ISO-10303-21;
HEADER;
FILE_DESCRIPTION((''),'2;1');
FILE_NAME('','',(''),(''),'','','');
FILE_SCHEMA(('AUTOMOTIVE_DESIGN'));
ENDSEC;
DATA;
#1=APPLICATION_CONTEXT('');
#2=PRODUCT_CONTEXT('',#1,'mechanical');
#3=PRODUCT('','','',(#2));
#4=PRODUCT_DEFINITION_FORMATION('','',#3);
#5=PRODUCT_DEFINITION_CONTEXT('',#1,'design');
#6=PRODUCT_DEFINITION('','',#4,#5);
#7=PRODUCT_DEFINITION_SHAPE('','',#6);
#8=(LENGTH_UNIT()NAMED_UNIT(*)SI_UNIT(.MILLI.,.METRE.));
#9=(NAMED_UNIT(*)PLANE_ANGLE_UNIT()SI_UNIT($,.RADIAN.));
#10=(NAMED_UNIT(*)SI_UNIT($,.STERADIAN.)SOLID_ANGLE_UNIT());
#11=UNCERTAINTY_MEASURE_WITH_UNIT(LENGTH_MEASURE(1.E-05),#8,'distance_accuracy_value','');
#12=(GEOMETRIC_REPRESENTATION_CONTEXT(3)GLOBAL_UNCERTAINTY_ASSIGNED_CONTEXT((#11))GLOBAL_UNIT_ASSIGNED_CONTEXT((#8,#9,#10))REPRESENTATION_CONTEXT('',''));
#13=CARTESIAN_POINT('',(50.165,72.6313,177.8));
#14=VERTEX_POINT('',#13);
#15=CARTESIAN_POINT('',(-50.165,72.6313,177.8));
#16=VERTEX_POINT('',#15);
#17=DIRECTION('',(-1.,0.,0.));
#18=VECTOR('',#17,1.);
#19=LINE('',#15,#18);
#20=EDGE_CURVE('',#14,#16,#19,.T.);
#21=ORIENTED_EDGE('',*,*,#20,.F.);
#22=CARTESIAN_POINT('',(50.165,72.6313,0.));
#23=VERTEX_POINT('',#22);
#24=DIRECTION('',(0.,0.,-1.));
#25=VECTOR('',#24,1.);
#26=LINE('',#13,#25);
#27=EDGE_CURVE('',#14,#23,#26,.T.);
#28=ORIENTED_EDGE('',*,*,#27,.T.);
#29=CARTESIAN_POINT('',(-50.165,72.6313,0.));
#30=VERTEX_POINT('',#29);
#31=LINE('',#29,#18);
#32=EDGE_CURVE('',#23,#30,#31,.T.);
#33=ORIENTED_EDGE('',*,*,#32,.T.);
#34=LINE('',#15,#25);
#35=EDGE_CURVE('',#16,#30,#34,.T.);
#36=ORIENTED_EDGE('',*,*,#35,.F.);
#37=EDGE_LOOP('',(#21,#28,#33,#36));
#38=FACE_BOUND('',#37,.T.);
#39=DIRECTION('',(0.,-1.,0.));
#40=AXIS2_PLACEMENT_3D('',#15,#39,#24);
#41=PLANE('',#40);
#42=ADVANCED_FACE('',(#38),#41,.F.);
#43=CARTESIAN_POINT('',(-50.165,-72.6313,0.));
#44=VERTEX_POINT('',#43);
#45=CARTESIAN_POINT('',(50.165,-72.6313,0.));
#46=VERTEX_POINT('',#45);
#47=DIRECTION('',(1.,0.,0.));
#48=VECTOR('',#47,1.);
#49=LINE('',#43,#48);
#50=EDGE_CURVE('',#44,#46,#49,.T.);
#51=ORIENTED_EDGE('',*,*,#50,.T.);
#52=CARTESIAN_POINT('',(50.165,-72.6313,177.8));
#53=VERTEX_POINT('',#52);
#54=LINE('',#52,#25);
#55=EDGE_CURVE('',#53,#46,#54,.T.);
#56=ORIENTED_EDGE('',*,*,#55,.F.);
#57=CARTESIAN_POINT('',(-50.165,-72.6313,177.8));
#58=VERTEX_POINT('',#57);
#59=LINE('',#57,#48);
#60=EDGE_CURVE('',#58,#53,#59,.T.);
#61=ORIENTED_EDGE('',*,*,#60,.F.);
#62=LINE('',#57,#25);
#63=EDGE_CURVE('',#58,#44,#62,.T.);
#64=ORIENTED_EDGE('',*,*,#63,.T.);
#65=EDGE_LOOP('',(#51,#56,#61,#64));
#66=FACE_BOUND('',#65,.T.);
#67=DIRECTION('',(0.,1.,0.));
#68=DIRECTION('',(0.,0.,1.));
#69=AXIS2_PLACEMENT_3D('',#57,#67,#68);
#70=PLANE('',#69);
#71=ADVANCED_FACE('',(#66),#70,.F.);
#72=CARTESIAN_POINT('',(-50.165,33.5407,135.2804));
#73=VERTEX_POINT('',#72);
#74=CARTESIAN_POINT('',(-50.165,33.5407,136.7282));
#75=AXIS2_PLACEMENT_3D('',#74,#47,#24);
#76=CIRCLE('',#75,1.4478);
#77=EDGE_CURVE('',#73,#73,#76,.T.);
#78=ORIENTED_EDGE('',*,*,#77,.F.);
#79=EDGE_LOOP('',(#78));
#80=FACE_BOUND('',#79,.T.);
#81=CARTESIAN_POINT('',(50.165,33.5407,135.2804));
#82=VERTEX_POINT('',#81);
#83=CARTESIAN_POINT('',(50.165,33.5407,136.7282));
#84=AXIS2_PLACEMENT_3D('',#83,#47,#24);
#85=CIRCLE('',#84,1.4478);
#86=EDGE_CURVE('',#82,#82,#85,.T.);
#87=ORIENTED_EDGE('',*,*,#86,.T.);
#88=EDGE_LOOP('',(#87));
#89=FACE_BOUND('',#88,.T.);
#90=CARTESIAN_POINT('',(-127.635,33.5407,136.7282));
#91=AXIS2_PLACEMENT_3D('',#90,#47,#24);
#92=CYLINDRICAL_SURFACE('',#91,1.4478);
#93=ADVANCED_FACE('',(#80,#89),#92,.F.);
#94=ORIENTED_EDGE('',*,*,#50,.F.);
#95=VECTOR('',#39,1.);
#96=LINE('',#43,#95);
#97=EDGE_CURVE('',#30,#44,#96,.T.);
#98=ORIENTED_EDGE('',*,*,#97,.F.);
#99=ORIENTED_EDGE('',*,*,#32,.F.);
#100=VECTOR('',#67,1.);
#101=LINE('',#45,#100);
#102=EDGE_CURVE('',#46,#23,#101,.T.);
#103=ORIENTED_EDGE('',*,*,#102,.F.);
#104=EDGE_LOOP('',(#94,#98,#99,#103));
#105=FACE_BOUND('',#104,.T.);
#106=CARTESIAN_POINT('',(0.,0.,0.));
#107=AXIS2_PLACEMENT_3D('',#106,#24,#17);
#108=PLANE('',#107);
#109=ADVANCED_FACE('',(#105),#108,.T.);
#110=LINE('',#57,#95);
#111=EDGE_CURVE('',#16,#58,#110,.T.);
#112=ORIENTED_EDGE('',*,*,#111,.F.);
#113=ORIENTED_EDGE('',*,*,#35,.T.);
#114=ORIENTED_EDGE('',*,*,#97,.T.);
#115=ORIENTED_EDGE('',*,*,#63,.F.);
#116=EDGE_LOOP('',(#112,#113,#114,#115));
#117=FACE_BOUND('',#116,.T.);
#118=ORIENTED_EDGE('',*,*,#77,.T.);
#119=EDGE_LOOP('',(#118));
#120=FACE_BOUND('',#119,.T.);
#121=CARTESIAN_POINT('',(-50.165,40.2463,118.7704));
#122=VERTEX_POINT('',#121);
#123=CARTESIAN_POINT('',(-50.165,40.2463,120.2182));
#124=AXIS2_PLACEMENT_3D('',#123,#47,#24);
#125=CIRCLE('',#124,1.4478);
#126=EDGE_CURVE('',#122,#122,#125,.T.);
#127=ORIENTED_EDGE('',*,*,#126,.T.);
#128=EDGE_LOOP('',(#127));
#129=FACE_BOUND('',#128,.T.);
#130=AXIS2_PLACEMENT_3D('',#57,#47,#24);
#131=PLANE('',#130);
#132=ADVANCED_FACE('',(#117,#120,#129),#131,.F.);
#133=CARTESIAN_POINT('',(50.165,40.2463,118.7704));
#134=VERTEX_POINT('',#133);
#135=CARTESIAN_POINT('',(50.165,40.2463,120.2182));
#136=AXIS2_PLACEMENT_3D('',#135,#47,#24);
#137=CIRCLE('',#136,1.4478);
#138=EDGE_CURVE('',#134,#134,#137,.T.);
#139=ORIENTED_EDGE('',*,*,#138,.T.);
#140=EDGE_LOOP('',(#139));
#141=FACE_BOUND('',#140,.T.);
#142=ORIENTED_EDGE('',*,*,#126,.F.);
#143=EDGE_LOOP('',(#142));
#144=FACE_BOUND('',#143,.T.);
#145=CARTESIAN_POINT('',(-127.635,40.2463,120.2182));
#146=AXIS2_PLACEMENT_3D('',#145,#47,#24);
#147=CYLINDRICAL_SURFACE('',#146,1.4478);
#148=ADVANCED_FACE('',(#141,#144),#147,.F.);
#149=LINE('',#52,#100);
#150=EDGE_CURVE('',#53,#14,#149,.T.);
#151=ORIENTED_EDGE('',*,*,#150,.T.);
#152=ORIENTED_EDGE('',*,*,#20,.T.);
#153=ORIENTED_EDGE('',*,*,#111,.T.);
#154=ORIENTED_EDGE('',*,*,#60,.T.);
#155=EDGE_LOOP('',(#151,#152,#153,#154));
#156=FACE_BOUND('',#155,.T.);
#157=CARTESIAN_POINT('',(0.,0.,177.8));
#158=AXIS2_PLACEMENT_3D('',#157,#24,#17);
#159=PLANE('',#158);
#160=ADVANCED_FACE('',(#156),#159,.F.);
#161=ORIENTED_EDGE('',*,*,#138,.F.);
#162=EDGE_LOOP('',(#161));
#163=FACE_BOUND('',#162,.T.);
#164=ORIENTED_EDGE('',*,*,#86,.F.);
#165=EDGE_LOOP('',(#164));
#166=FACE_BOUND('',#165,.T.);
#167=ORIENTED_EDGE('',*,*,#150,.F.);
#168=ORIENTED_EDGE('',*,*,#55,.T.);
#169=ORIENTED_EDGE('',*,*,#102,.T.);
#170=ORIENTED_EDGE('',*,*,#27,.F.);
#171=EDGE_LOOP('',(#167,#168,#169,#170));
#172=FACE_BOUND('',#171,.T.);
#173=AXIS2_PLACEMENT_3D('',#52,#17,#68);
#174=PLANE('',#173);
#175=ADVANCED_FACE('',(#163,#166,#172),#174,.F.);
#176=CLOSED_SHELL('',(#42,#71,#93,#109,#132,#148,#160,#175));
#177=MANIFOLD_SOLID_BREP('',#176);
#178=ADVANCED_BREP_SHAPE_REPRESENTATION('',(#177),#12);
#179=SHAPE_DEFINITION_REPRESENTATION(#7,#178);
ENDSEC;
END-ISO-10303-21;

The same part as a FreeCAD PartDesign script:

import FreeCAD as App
import Part
import Sketcher
Q = App.Units.Quantity

doc = App.newDocument("Part")
params = doc.addObject("Spreadsheet::Sheet", "Params")
for row, (alias, value) in enumerate([
    ("sketch1_width", "3.95 in"),
    ("sketch1_height", "5.719 in"),
    ("pad1_length", "7 in"),
    ("sketch2_diameter", "0.114 in"),
    ("pocket1_length", "7 in"),
], start=1):
    params.set(f"A{row}", alias)
    params.set(f"B{row}", "=" + value)
    params.setAlias(f"B{row}", alias)

body = doc.addObject("PartDesign::Body", "Body")

sketch1 = body.newObject("Sketcher::SketchObject", "Sketch")
sketch1.AttachmentSupport = (doc.getObject("XY_Plane"), [""])
sketch1.MapMode = "FlatFace"
sketch1.addGeometry([
    Part.LineSegment(App.Vector(-50.165, 72.6313, 0), App.Vector(-50.165, -72.6313, 0)),
    Part.LineSegment(App.Vector(-50.165, -72.6313, 0), App.Vector(50.165, -72.6313, 0)),
    Part.LineSegment(App.Vector(50.165, -72.6313, 0), App.Vector(50.165, 72.6313, 0)),
    Part.LineSegment(App.Vector(50.165, 72.6313, 0), App.Vector(-50.165, 72.6313, 0)),
], False)
sketch1.addConstraint([
    Sketcher.Constraint("Coincident", 0, 2, 1, 1),
    Sketcher.Constraint("Coincident", 1, 2, 2, 1),
    Sketcher.Constraint("Coincident", 2, 2, 3, 1),
    Sketcher.Constraint("Coincident", 3, 2, 0, 1),
    Sketcher.Constraint("Vertical", 0),
    Sketcher.Constraint("Horizontal", 1),
    Sketcher.Constraint("Vertical", 2),
    Sketcher.Constraint("Horizontal", 3),
    Sketcher.Constraint("Symmetric", 0, 2, 2, 2, -1, 1),
    Sketcher.Constraint("DistanceX", 1, 1, 1, 2, Q("3.95 in")),
    Sketcher.Constraint("DistanceY", 0, 2, 0, 1, Q("5.719 in")),
])
sketch1.setExpression("Constraints[9]", "Params.sketch1_width")
sketch1.setExpression("Constraints[10]", "Params.sketch1_height")
pad1 = body.newObject("PartDesign::Pad", "Pad")
pad1.Profile = sketch1
pad1.setExpression("Length", "Params.pad1_length")

sketch2 = body.newObject("Sketcher::SketchObject", "Sketch001")
sketch2.AttachmentSupport = (doc.getObject("YZ_Plane"), [""])
sketch2.MapMode = "FlatFace"
sketch2.AttachmentOffset = App.Placement(App.Vector(0, 0, 1.975 * 25.4), App.Rotation())
sketch2.addGeometry([
    Part.Circle(App.Vector(33.5407, 136.7282, 0), App.Vector(0, 0, 1), 1.4478),
    Part.Circle(App.Vector(40.2463, 120.2182, 0), App.Vector(0, 0, 1), 1.4478),
], False)
sketch2.addConstraint([
    Sketcher.Constraint("Equal", 0, 1),
    Sketcher.Constraint("Diameter", 0, Q("0.114 in")),
    Sketcher.Constraint("DistanceY", 1, 3, 0, 3, Q("0.65 in")),
    Sketcher.Constraint("DistanceY", -1, 1, 0, 3, Q("5.383 in")),
    Sketcher.Constraint("DistanceX", 0, 3, 1, 3, Q("0.264 in")),
    Sketcher.Constraint("DistanceX", -1, 1, 0, 3, Q("1.3205 in")),
])
sketch2.setExpression("Constraints[1]", "Params.sketch2_diameter")
pocket1 = body.newObject("PartDesign::Pocket", "Pocket")
pocket1.Profile = sketch2
pocket1.setExpression("Length", "Params.pocket1_length")

doc.recompute()
